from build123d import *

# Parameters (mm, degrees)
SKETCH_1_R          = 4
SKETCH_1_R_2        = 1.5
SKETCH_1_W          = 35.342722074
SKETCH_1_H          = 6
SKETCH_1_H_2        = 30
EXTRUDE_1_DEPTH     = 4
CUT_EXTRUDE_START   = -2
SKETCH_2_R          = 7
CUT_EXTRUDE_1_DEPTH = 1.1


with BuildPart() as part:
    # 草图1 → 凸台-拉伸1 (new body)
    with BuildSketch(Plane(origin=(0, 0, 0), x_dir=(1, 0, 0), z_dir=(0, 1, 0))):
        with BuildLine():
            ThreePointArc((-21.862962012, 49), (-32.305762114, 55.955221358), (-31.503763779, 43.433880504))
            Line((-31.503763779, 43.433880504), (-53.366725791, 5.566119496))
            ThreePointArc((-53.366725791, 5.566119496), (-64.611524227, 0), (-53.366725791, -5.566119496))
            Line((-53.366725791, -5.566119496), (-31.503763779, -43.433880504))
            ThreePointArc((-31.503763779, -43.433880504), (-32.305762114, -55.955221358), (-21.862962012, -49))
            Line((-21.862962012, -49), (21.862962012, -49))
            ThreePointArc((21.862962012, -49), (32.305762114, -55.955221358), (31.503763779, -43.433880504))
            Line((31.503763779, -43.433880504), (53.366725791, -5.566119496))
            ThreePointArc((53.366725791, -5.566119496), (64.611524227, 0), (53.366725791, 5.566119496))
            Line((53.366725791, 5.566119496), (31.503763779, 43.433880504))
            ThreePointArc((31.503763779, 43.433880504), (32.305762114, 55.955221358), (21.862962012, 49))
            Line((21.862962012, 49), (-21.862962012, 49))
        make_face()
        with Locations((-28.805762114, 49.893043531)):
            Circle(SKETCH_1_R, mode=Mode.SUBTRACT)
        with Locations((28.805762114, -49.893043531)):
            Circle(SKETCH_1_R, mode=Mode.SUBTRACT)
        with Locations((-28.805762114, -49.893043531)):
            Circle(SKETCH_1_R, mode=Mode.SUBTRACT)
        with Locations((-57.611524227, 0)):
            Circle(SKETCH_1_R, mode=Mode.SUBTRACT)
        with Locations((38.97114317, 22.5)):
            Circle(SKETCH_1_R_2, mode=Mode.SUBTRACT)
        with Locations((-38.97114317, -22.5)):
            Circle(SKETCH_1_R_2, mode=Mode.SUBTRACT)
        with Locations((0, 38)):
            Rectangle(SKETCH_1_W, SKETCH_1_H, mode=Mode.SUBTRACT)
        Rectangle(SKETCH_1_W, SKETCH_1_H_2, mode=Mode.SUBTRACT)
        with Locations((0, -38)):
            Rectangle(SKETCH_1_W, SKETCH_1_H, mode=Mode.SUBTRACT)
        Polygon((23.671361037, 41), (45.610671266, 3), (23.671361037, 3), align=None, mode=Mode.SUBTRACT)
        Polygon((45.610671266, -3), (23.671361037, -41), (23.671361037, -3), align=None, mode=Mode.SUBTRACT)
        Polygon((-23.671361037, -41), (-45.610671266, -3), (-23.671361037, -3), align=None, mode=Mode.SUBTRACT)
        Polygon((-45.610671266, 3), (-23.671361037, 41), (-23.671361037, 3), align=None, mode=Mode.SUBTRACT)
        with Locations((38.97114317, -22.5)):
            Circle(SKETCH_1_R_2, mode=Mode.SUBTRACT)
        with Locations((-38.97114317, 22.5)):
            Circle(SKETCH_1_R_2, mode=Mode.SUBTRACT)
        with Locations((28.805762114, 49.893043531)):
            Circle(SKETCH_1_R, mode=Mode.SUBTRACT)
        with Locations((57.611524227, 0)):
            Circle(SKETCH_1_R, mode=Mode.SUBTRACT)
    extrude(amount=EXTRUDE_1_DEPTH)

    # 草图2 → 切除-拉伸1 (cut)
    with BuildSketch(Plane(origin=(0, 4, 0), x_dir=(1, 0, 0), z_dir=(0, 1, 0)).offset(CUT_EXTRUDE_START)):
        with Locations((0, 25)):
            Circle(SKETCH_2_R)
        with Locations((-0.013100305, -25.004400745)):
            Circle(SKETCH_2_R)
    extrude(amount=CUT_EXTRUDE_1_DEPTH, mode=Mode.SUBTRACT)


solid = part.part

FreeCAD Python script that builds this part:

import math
import FreeCAD as App
import Part
import Sketcher
Q = App.Units.Quantity

doc = App.newDocument("Part")
params = doc.addObject("Spreadsheet::Sheet", "Params")
for row, (alias, value) in enumerate([
    ("sketch1_diameter", "8 mm"),
    ("sketch1_diameter2", "3 mm"),
    ("sketch1_radius", "7 mm"),
    ("sketch1_height", "38 mm"),
    ("sketch1_height2", "6 mm"),
    ("pad1_length", "4 mm"),
    ("sketch2_diameter", "14 mm"),
    ("pocket1_length", "1.1 mm"),
], start=1):
    params.set(f"A{row}", alias)
    params.set(f"B{row}", "=" + value)
    params.setAlias(f"B{row}", alias)

body = doc.addObject("PartDesign::Body", "Body")

# Sketch on XZ plane
sketch1 = body.newObject("Sketcher::SketchObject", "Sketch")
sketch1.AttachmentSupport = (doc.getObject("XZ_Plane"), [""])
sketch1.MapMode = "FlatFace"
sketch1.addGeometry([
    Part.ArcOfCircle(Part.Circle(App.Vector(-28.805762, -49.893044, 0), App.Vector(0, 0, 1), 7), math.radians(112.670364), math.radians(367.329636)),  # 0
    Part.LineSegment(App.Vector(-31.503764, -43.433881, 0), App.Vector(-53.366726, -5.566119, 0)),  # 1
    Part.ArcOfCircle(Part.Circle(App.Vector(-57.611524, 0, 0), App.Vector(0, 0, 1), 7), math.radians(52.670364), math.radians(307.329636)),  # 2
    Part.LineSegment(App.Vector(-53.366726, 5.566119, 0), App.Vector(-31.503764, 43.433881, 0)),  # 3
    Part.ArcOfCircle(Part.Circle(App.Vector(-28.805762, 49.893044, 0), App.Vector(0, 0, 1), 7), math.radians(-7.329636), math.radians(247.329636)),  # 4
    Part.LineSegment(App.Vector(-21.862962, 49, 0), App.Vector(21.862962, 49, 0)),  # 5
    Part.ArcOfCircle(Part.Circle(App.Vector(28.805762, 49.893044, 0), App.Vector(0, 0, 1), 7), math.radians(-67.329636), math.radians(187.329636)),  # 6
    Part.LineSegment(App.Vector(31.503764, 43.433881, 0), App.Vector(53.366726, 5.566119, 0)),  # 7
    Part.ArcOfCircle(Part.Circle(App.Vector(57.611524, 0, 0), App.Vector(0, 0, 1), 7), math.radians(-127.329636), math.radians(127.329636)),  # 8
    Part.LineSegment(App.Vector(53.366726, -5.566119, 0), App.Vector(31.503764, -43.433881, 0)),  # 9
    Part.ArcOfCircle(Part.Circle(App.Vector(28.805762, -49.893044, 0), App.Vector(0, 0, 1), 7), math.radians(172.670364), math.radians(427.329636)),  # 10
    Part.LineSegment(App.Vector(21.862962, -49, 0), App.Vector(-21.862962, -49, 0)),  # 11
    Part.Circle(App.Vector(-28.805762, 49.893044, 0), App.Vector(0, 0, 1), 4),  # 12
    Part.Circle(App.Vector(-38.971143, 22.5, 0), App.Vector(0, 0, 1), 1.5),  # 13
    Part.LineSegment(App.Vector(-23.671361, 3, 0), App.Vector(-23.671361, 41, 0)),  # 14
    Part.LineSegment(App.Vector(-23.671361, 41, 0), App.Vector(-45.610671, 3, 0)),  # 15
    Part.LineSegment(App.Vector(-45.610671, 3, 0), App.Vector(-23.671361, 3, 0)),  # 16
    Part.Circle(App.Vector(28.805762, 49.893044, 0), App.Vector(0, 0, 1), 4),  # 17
    Part.LineSegment(App.Vector(17.671361, 41, 0), App.Vector(-17.671361, 41, 0)),  # 18
    Part.LineSegment(App.Vector(-17.671361, 41, 0), App.Vector(-17.671361, 35, 0)),  # 19
    Part.LineSegment(App.Vector(-17.671361, 35, 0), App.Vector(17.671361, 35, 0)),  # 20
    Part.LineSegment(App.Vector(17.671361, 35, 0), App.Vector(17.671361, 41, 0)),  # 21
    Part.LineSegment(App.Vector(23.671361, 3, 0), App.Vector(45.610671, 3, 0)),  # 22
    Part.LineSegment(App.Vector(45.610671, 3, 0), App.Vector(23.671361, 41, 0)),  # 23
    Part.LineSegment(App.Vector(23.671361, 41, 0), App.Vector(23.671361, 3, 0)),  # 24
    Part.Circle(App.Vector(38.971143, 22.5, 0), App.Vector(0, 0, 1), 1.5),  # 25
    Part.Circle(App.Vector(-57.611524, 0, 0), App.Vector(0, 0, 1), 4),  # 26
    Part.Circle(App.Vector(-38.971143, -22.5, 0), App.Vector(0, 0, 1), 1.5),  # 27
    Part.LineSegment(App.Vector(-23.671361, -3, 0), App.Vector(-45.610671, -3, 0)),  # 28
    Part.LineSegment(App.Vector(-45.610671, -3, 0), App.Vector(-23.671361, -41, 0)),  # 29
    Part.LineSegment(App.Vector(-23.671361, -41, 0), App.Vector(-23.671361, -3, 0)),  # 30
    Part.Circle(App.Vector(-28.805762, -49.893044, 0), App.Vector(0, 0, 1), 4),  # 31
    Part.LineSegment(App.Vector(17.671361, 15, 0), App.Vector(-17.671361, 15, 0)),  # 32
    Part.LineSegment(App.Vector(-17.671361, 15, 0), App.Vector(-17.671361, -15, 0)),  # 33
    Part.LineSegment(App.Vector(-17.671361, -15, 0), App.Vector(17.671361, -15, 0)),  # 34
    Part.LineSegment(App.Vector(17.671361, -15, 0), App.Vector(17.671361, 15, 0)),  # 35
    Part.Circle(App.Vector(57.611524, 0, 0), App.Vector(0, 0, 1), 4),  # 36
    Part.LineSegment(App.Vector(23.671361, -3, 0), App.Vector(23.671361, -41, 0)),  # 37
    Part.LineSegment(App.Vector(23.671361, -41, 0), App.Vector(45.610671, -3, 0)),  # 38
    Part.LineSegment(App.Vector(45.610671, -3, 0), App.Vector(23.671361, -3, 0)),  # 39
    Part.Circle(App.Vector(38.971143, -22.5, 0), App.Vector(0, 0, 1), 1.5),  # 40
    Part.LineSegment(App.Vector(17.671361, -35, 0), App.Vector(-17.671361, -35, 0)),  # 41
    Part.LineSegment(App.Vector(-17.671361, -35, 0), App.Vector(-17.671361, -41, 0)),  # 42
    Part.LineSegment(App.Vector(-17.671361, -41, 0), App.Vector(17.671361, -41, 0)),  # 43
    Part.LineSegment(App.Vector(17.671361, -41, 0), App.Vector(17.671361, -35, 0)),  # 44
    Part.Circle(App.Vector(28.805762, -49.893044, 0), App.Vector(0, 0, 1), 4),  # 45
], False)
sketch1.addConstraint([
    Sketcher.Constraint("Coincident", 0, 1, 1, 1),
    Sketcher.Constraint("Coincident", 1, 2, 2, 2),
    Sketcher.Constraint("Coincident", 2, 1, 3, 1),
    Sketcher.Constraint("Coincident", 3, 2, 4, 2),
    Sketcher.Constraint("Coincident", 4, 1, 5, 1),
    Sketcher.Constraint("Coincident", 5, 2, 6, 2),
    Sketcher.Constraint("Coincident", 6, 1, 7, 1),
    Sketcher.Constraint("Coincident", 7, 2, 8, 2),
    Sketcher.Constraint("Coincident", 8, 1, 9, 1),
    Sketcher.Constraint("Coincident", 9, 2, 10, 2),
    Sketcher.Constraint("Coincident", 10, 1, 11, 1),
    Sketcher.Constraint("Coincident", 11, 2, 0, 2),
    Sketcher.Constraint("Coincident", 14, 2, 15, 1),
    Sketcher.Constraint("Coincident", 15, 2, 16, 1),
    Sketcher.Constraint("Coincident", 16, 2, 14, 1),
    Sketcher.Constraint("Coincident", 18, 2, 19, 1),
    Sketcher.Constraint("Coincident", 19, 2, 20, 1),
    Sketcher.Constraint("Coincident", 20, 2, 21, 1),
    Sketcher.Constraint("Coincident", 21, 2, 18, 1),
    Sketcher.Constraint("Coincident", 22, 2, 23, 1),
    Sketcher.Constraint("Coincident", 23, 2, 24, 1),
    Sketcher.Constraint("Coincident", 24, 2, 22, 1),
    Sketcher.Constraint("Coincident", 28, 2, 29, 1),
    Sketcher.Constraint("Coincident", 29, 2, 30, 1),
    Sketcher.Constraint("Coincident", 30, 2, 28, 1),
    Sketcher.Constraint("Coincident", 32, 2, 33, 1),
    Sketcher.Constraint("Coincident", 33, 2, 34, 1),
    Sketcher.Constraint("Coincident", 34, 2, 35, 1),
    Sketcher.Constraint("Coincident", 35, 2, 32, 1),
    Sketcher.Constraint("Coincident", 37, 2, 38, 1),
    Sketcher.Constraint("Coincident", 38, 2, 39, 1),
    Sketcher.Constraint("Coincident", 39, 2, 37, 1),
    Sketcher.Constraint("Coincident", 41, 2, 42, 1),
    Sketcher.Constraint("Coincident", 42, 2, 43, 1),
    Sketcher.Constraint("Coincident", 43, 2, 44, 1),
    Sketcher.Constraint("Coincident", 44, 2, 41, 1),
    Sketcher.Constraint("Horizontal", 5),
    Sketcher.Constraint("Horizontal", 11),
    Sketcher.Constraint("Vertical", 14),
    Sketcher.Constraint("Horizontal", 16),
    Sketcher.Constraint("Horizontal", 18),
    Sketcher.Constraint("Vertical", 19),
    Sketcher.Constraint("Horizontal", 20),
    Sketcher.Constraint("Vertical", 21),
    Sketcher.Constraint("Horizontal", 22),
    Sketcher.Constraint("Vertical", 24),
    Sketcher.Constraint("Horizontal", 28),
    Sketcher.Constraint("Vertical", 30),
    Sketcher.Constraint("Horizontal", 32),
    Sketcher.Constraint("Vertical", 33),
    Sketcher.Constraint("Horizontal", 34),
    Sketcher.Constraint("Vertical", 35),
    Sketcher.Constraint("Vertical", 37),
    Sketcher.Constraint("Horizontal", 39),
    Sketcher.Constraint("Horizontal", 41),
    Sketcher.Constraint("Vertical", 42),
    Sketcher.Constraint("Horizontal", 43),
    Sketcher.Constraint("Vertical", 44),
    Sketcher.Constraint("Coincident", 12, 3, 4, 3),
    Sketcher.Constraint("Coincident", 17, 3, 6, 3),
    Sketcher.Constraint("Coincident", 26, 3, 2, 3),
    Sketcher.Constraint("Coincident", 31, 3, 0, 3),
    Sketcher.Constraint("Coincident", 36, 3, 8, 3),
    Sketcher.Constraint("Coincident", 45, 3, 10, 3),
    Sketcher.Constraint("Equal", 0, 2),
    Sketcher.Constraint("Equal", 2, 4),
    Sketcher.Constraint("Equal", 4, 6),
    Sketcher.Constraint("Equal", 6, 8),
    Sketcher.Constraint("Equal", 8, 10),
    Sketcher.Constraint("Equal", 12, 17),
    Sketcher.Constraint("Equal", 13, 25),
    Sketcher.Constraint("Equal", 17, 26),
    Sketcher.Constraint("Equal", 25, 27),
    Sketcher.Constraint("Equal", 26, 31),
    Sketcher.Constraint("Equal", 31, 36),
    Sketcher.Constraint("Equal", 27, 40),
    Sketcher.Constraint("Equal", 36, 45),
    Sketcher.Constraint("Symmetric", 0, 3, 6, 3, -1, 1),
    Sketcher.Constraint("Symmetric", 2, 3, 8, 3, -1, 1),
    Sketcher.Constraint("Symmetric", 4, 3, 10, 3, -1, 1),
    Sketcher.Constraint("Symmetric", 25, 3, 27, 3, -1, 1),
    Sketcher.Constraint("Symmetric", 13, 3, 40, 3, -1, 1),
    Sketcher.Constraint("Symmetric", 22, 2, 28, 2, -1, 1),
    Sketcher.Constraint("Symmetric", 23, 2, 29, 2, -1, 1),
    Sketcher.Constraint("Symmetric", 32, 2, 34, 2, -1, 1),
    Sketcher.Constraint("Symmetric", 14, 2, 37, 2, -1, 1),
    Sketcher.Constraint("Symmetric", 15, 2, 38, 2, -1, 1),
    Sketcher.Constraint("Symmetric", 20, 2, 41, 2, -1, 1),
    Sketcher.Constraint("Symmetric", 18, 2, 43, 2, -1, 1),
    Sketcher.Constraint("Symmetric", 4, 3, 6, 3, -2),
    Sketcher.Constraint("Symmetric", 13, 3, 25, 3, -2),
    Sketcher.Constraint("Symmetric", 2, 1, 7, 2, -2),
    Sketcher.Constraint("Symmetric", 15, 2, 22, 2, -2),
    Sketcher.Constraint("Symmetric", 14, 2, 23, 2, -2),
    Sketcher.Constraint("Parallel", 1, 7),
    Sketcher.Constraint("Parallel", 3, 9),
    Sketcher.Constraint("Parallel", 9, 15),
    Sketcher.Constraint("Parallel", 7, 23),
    Sketcher.Constraint("Horizontal", 1, 2, 8, 1),
    Sketcher.Constraint("Horizontal", 14, 2, 18, 2),
    Sketcher.Constraint("Vertical", 1, 2, 2, 1),
    Sketcher.Constraint("Vertical", 5, 2, 10, 1),
    Sketcher.Constraint("Vertical", 19, 2, 32, 2),
    Sketcher.Constraint("Vertical", 21, 2, 34, 2),
    Sketcher.Constraint("Diameter", 12, 8.0),
    Sketcher.Constraint("Diameter", 13, 3.0),
    Sketcher.Constraint("Radius", 0, 7.0),
    Sketcher.Constraint("DistanceY", 14, 1, 14, 2, 38.0),
    Sketcher.Constraint("DistanceY", 19, 2, 19, 1, 6.0),
    Sketcher.Constraint("DistanceY", 33, 2, 33, 1, 30.0),
    Sketcher.Constraint("Angle", 1, Q("120 deg")),
    Sketcher.Constraint("DistanceY", -1, 1, 4, 1, 49.0),
    Sketcher.Constraint("DistanceY", -1, 1, 14, 2, 41.0),
    Sketcher.Constraint("DistanceY", 27, 3, 13, 3, 45.0),
    Sketcher.Constraint("DistanceX", 14, 2, 18, 2, 6.0),
    Sketcher.Constraint("DistanceX", 0, 1, 31, 3, 2.698002),
    Sketcher.Constraint("DistanceX", 2, 3, 1, 2, 4.244798),
    Sketcher.Constraint("DistanceX", 12, 3, 4, 1, 6.9428),
    Sketcher.Constraint("DistanceX", 14, 2, 4, 1, 1.808399),
    Sketcher.Constraint("DistanceX", 5, 1, 5, 2, 43.725924),
    Sketcher.Constraint("DistanceX", 13, 3, 12, 3, 10.165381),
])
sketch1.setExpression("Constraints[104]", "Params.sketch1_diameter")
sketch1.setExpression("Constraints[105]", "Params.sketch1_diameter2")
sketch1.setExpression("Constraints[106]", "Params.sketch1_radius")
sketch1.setExpression("Constraints[107]", "Params.sketch1_height")
sketch1.setExpression("Constraints[108]", "Params.sketch1_height2")
pad1 = body.newObject("PartDesign::Pad", "Pad")
pad1.Profile = sketch1
pad1.setExpression("Length", "Params.pad1_length")
pad1.Reversed = True

# Sketch on XZ plane
sketch2 = body.newObject("Sketcher::SketchObject", "Sketch001")
sketch2.AttachmentSupport = (doc.getObject("XZ_Plane"), [""])
sketch2.MapMode = "FlatFace"
sketch2.AttachmentOffset = App.Placement(App.Vector(0, 0, -2), App.Rotation())
sketch2.addGeometry([
    Part.Circle(App.Vector(0, -25, 0), App.Vector(0, 0, 1), 7),
    Part.Circle(App.Vector(-0.0131, 25.004401, 0), App.Vector(0, 0, 1), 7),
], False)
sketch2.addConstraint([
    Sketcher.Constraint("Equal", 0, 1),
    Sketcher.Constraint("PointOnObject", 0, 3, -2),
    Sketcher.Constraint("Diameter", 0, 14.0),
    Sketcher.Constraint("DistanceY", 0, 3, -1, 1, 25.0),
    Sketcher.Constraint("DistanceX", 1, 3, -1, 1, 0.0131),
    Sketcher.Constraint("DistanceY", -1, 1, 1, 3, 25.004401),
])
sketch2.setExpression("Constraints[2]", "Params.sketch2_diameter")
pocket1 = body.newObject("PartDesign::Pocket", "Pocket")
pocket1.Profile = sketch2
pocket1.setExpression("Length", "Params.pocket1_length")

doc.recompute()
